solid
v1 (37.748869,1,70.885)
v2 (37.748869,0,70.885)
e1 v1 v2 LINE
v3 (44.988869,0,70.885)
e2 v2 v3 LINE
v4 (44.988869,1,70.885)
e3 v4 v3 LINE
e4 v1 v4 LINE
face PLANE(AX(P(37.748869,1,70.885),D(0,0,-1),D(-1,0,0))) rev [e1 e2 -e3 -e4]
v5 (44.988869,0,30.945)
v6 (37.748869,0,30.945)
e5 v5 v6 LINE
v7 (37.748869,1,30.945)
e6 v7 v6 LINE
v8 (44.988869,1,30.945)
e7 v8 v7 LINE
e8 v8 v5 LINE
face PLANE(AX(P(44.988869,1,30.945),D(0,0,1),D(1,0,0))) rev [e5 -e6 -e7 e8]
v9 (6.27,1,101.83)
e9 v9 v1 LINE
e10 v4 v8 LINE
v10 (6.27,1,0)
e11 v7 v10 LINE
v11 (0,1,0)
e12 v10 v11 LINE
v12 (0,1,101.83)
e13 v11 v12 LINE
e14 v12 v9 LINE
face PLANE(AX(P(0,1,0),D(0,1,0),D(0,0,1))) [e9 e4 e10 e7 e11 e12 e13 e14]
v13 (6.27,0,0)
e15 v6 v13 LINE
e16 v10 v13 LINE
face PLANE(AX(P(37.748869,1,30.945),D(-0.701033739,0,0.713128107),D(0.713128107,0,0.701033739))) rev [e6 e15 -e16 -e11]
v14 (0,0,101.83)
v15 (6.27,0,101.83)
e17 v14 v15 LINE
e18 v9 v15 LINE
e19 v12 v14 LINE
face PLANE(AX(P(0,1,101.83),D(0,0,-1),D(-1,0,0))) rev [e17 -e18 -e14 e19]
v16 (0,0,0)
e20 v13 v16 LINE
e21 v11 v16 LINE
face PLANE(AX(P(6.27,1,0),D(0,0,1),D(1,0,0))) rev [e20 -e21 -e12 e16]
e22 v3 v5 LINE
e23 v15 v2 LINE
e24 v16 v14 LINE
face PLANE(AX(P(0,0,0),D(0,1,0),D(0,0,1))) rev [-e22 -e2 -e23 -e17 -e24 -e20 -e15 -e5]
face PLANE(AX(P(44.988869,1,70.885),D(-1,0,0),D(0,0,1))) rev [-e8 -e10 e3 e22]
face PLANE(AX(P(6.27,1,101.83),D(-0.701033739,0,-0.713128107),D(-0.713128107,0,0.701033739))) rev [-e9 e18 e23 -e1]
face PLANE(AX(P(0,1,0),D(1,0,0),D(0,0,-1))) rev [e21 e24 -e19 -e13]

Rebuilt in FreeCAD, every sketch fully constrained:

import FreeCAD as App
import Part
import Sketcher

V = App.Vector
Q = App.Units.Quantity

doc = App.newDocument("Part")
params = doc.addObject("Spreadsheet::Sheet", "Params")
for row, (alias, value) in enumerate([
    ("sketch1_width", "6.27 mm"),
    ("sketch1_width2", "7.24 mm"),
    ("sketch1_height", "101.83 mm"),
    ("sketch1_height2", "39.94 mm"),
    ("pad1_length", "1 mm"),
], start=1):
    params.set(f"A{row}", alias)
    params.set(f"B{row}", "=" + value)
    params.setAlias(f"B{row}", alias)

body = doc.addObject("PartDesign::Body", "Body")

sketch1 = body.newObject("Sketcher::SketchObject", "Sketch")
sketch1.AttachmentSupport = (doc.getObject("XZ_Plane"), [""])
sketch1.MapMode = "FlatFace"
sketch1.addGeometry([
    Part.LineSegment(V(0, 0, 0), V(0, 101.83, 0)),
    Part.LineSegment(V(0, 101.83, 0), V(6.27, 101.83, 0)),
    Part.LineSegment(V(6.27, 101.83, 0), V(37.748869, 70.885, 0)),
    Part.LineSegment(V(37.748869, 70.885, 0), V(44.988869, 70.885, 0)),
    Part.LineSegment(V(44.988869, 70.885, 0), V(44.988869, 30.945, 0)),
    Part.LineSegment(V(44.988869, 30.945, 0), V(37.748869, 30.945, 0)),
    Part.LineSegment(V(37.748869, 30.945, 0), V(6.27, 0, 0)),
    Part.LineSegment(V(6.27, 0, 0), V(0, 0, 0)),
], False)
sketch1.addConstraint([
    Sketcher.Constraint("Coincident", 0, 2, 1, 1),
    Sketcher.Constraint("Coincident", 1, 2, 2, 1),
    Sketcher.Constraint("Coincident", 2, 2, 3, 1),
    Sketcher.Constraint("Coincident", 3, 2, 4, 1),
    Sketcher.Constraint("Coincident", 4, 2, 5, 1),
    Sketcher.Constraint("Coincident", 5, 2, 6, 1),
    Sketcher.Constraint("Coincident", 6, 2, 7, 1),
    Sketcher.Constraint("Coincident", 7, 2, 0, 1),
    Sketcher.Constraint("Vertical", 0),
    Sketcher.Constraint("Horizontal", 1),
    Sketcher.Constraint("Horizontal", 3),
    Sketcher.Constraint("Vertical", 4),
    Sketcher.Constraint("Horizontal", 5),
    Sketcher.Constraint("Horizontal", 7),
    Sketcher.Constraint("Coincident", 7, 2, -1, 1),
    Sketcher.Constraint("Vertical", 2, 2, 5, 2),
    Sketcher.Constraint("Vertical", 1, 2, 6, 2),
    Sketcher.Constraint("Equal", 2, 6),
    Sketcher.Constraint("DistanceX", 1, 1, 1, 2, 6.27),
    Sketcher.Constraint("DistanceX", 3, 1, 3, 2, 7.24),
    Sketcher.Constraint("DistanceY", 0, 1, 0, 2, 101.83),
    Sketcher.Constraint("DistanceY", 4, 2, 4, 1, 39.94),
    Sketcher.Constraint("Angle", 2, Q("-44.51 deg")),
])
sketch1.setExpression("Constraints[18]", "Params.sketch1_width")
sketch1.setExpression("Constraints[19]", "Params.sketch1_width2")
sketch1.setExpression("Constraints[20]", "Params.sketch1_height")
sketch1.setExpression("Constraints[21]", "Params.sketch1_height2")
pad1 = body.newObject("PartDesign::Pad", "Pad")
pad1.Profile = sketch1
pad1.setExpression("Length", "Params.pad1_length")
pad1.Reversed = True

doc.recompute()
